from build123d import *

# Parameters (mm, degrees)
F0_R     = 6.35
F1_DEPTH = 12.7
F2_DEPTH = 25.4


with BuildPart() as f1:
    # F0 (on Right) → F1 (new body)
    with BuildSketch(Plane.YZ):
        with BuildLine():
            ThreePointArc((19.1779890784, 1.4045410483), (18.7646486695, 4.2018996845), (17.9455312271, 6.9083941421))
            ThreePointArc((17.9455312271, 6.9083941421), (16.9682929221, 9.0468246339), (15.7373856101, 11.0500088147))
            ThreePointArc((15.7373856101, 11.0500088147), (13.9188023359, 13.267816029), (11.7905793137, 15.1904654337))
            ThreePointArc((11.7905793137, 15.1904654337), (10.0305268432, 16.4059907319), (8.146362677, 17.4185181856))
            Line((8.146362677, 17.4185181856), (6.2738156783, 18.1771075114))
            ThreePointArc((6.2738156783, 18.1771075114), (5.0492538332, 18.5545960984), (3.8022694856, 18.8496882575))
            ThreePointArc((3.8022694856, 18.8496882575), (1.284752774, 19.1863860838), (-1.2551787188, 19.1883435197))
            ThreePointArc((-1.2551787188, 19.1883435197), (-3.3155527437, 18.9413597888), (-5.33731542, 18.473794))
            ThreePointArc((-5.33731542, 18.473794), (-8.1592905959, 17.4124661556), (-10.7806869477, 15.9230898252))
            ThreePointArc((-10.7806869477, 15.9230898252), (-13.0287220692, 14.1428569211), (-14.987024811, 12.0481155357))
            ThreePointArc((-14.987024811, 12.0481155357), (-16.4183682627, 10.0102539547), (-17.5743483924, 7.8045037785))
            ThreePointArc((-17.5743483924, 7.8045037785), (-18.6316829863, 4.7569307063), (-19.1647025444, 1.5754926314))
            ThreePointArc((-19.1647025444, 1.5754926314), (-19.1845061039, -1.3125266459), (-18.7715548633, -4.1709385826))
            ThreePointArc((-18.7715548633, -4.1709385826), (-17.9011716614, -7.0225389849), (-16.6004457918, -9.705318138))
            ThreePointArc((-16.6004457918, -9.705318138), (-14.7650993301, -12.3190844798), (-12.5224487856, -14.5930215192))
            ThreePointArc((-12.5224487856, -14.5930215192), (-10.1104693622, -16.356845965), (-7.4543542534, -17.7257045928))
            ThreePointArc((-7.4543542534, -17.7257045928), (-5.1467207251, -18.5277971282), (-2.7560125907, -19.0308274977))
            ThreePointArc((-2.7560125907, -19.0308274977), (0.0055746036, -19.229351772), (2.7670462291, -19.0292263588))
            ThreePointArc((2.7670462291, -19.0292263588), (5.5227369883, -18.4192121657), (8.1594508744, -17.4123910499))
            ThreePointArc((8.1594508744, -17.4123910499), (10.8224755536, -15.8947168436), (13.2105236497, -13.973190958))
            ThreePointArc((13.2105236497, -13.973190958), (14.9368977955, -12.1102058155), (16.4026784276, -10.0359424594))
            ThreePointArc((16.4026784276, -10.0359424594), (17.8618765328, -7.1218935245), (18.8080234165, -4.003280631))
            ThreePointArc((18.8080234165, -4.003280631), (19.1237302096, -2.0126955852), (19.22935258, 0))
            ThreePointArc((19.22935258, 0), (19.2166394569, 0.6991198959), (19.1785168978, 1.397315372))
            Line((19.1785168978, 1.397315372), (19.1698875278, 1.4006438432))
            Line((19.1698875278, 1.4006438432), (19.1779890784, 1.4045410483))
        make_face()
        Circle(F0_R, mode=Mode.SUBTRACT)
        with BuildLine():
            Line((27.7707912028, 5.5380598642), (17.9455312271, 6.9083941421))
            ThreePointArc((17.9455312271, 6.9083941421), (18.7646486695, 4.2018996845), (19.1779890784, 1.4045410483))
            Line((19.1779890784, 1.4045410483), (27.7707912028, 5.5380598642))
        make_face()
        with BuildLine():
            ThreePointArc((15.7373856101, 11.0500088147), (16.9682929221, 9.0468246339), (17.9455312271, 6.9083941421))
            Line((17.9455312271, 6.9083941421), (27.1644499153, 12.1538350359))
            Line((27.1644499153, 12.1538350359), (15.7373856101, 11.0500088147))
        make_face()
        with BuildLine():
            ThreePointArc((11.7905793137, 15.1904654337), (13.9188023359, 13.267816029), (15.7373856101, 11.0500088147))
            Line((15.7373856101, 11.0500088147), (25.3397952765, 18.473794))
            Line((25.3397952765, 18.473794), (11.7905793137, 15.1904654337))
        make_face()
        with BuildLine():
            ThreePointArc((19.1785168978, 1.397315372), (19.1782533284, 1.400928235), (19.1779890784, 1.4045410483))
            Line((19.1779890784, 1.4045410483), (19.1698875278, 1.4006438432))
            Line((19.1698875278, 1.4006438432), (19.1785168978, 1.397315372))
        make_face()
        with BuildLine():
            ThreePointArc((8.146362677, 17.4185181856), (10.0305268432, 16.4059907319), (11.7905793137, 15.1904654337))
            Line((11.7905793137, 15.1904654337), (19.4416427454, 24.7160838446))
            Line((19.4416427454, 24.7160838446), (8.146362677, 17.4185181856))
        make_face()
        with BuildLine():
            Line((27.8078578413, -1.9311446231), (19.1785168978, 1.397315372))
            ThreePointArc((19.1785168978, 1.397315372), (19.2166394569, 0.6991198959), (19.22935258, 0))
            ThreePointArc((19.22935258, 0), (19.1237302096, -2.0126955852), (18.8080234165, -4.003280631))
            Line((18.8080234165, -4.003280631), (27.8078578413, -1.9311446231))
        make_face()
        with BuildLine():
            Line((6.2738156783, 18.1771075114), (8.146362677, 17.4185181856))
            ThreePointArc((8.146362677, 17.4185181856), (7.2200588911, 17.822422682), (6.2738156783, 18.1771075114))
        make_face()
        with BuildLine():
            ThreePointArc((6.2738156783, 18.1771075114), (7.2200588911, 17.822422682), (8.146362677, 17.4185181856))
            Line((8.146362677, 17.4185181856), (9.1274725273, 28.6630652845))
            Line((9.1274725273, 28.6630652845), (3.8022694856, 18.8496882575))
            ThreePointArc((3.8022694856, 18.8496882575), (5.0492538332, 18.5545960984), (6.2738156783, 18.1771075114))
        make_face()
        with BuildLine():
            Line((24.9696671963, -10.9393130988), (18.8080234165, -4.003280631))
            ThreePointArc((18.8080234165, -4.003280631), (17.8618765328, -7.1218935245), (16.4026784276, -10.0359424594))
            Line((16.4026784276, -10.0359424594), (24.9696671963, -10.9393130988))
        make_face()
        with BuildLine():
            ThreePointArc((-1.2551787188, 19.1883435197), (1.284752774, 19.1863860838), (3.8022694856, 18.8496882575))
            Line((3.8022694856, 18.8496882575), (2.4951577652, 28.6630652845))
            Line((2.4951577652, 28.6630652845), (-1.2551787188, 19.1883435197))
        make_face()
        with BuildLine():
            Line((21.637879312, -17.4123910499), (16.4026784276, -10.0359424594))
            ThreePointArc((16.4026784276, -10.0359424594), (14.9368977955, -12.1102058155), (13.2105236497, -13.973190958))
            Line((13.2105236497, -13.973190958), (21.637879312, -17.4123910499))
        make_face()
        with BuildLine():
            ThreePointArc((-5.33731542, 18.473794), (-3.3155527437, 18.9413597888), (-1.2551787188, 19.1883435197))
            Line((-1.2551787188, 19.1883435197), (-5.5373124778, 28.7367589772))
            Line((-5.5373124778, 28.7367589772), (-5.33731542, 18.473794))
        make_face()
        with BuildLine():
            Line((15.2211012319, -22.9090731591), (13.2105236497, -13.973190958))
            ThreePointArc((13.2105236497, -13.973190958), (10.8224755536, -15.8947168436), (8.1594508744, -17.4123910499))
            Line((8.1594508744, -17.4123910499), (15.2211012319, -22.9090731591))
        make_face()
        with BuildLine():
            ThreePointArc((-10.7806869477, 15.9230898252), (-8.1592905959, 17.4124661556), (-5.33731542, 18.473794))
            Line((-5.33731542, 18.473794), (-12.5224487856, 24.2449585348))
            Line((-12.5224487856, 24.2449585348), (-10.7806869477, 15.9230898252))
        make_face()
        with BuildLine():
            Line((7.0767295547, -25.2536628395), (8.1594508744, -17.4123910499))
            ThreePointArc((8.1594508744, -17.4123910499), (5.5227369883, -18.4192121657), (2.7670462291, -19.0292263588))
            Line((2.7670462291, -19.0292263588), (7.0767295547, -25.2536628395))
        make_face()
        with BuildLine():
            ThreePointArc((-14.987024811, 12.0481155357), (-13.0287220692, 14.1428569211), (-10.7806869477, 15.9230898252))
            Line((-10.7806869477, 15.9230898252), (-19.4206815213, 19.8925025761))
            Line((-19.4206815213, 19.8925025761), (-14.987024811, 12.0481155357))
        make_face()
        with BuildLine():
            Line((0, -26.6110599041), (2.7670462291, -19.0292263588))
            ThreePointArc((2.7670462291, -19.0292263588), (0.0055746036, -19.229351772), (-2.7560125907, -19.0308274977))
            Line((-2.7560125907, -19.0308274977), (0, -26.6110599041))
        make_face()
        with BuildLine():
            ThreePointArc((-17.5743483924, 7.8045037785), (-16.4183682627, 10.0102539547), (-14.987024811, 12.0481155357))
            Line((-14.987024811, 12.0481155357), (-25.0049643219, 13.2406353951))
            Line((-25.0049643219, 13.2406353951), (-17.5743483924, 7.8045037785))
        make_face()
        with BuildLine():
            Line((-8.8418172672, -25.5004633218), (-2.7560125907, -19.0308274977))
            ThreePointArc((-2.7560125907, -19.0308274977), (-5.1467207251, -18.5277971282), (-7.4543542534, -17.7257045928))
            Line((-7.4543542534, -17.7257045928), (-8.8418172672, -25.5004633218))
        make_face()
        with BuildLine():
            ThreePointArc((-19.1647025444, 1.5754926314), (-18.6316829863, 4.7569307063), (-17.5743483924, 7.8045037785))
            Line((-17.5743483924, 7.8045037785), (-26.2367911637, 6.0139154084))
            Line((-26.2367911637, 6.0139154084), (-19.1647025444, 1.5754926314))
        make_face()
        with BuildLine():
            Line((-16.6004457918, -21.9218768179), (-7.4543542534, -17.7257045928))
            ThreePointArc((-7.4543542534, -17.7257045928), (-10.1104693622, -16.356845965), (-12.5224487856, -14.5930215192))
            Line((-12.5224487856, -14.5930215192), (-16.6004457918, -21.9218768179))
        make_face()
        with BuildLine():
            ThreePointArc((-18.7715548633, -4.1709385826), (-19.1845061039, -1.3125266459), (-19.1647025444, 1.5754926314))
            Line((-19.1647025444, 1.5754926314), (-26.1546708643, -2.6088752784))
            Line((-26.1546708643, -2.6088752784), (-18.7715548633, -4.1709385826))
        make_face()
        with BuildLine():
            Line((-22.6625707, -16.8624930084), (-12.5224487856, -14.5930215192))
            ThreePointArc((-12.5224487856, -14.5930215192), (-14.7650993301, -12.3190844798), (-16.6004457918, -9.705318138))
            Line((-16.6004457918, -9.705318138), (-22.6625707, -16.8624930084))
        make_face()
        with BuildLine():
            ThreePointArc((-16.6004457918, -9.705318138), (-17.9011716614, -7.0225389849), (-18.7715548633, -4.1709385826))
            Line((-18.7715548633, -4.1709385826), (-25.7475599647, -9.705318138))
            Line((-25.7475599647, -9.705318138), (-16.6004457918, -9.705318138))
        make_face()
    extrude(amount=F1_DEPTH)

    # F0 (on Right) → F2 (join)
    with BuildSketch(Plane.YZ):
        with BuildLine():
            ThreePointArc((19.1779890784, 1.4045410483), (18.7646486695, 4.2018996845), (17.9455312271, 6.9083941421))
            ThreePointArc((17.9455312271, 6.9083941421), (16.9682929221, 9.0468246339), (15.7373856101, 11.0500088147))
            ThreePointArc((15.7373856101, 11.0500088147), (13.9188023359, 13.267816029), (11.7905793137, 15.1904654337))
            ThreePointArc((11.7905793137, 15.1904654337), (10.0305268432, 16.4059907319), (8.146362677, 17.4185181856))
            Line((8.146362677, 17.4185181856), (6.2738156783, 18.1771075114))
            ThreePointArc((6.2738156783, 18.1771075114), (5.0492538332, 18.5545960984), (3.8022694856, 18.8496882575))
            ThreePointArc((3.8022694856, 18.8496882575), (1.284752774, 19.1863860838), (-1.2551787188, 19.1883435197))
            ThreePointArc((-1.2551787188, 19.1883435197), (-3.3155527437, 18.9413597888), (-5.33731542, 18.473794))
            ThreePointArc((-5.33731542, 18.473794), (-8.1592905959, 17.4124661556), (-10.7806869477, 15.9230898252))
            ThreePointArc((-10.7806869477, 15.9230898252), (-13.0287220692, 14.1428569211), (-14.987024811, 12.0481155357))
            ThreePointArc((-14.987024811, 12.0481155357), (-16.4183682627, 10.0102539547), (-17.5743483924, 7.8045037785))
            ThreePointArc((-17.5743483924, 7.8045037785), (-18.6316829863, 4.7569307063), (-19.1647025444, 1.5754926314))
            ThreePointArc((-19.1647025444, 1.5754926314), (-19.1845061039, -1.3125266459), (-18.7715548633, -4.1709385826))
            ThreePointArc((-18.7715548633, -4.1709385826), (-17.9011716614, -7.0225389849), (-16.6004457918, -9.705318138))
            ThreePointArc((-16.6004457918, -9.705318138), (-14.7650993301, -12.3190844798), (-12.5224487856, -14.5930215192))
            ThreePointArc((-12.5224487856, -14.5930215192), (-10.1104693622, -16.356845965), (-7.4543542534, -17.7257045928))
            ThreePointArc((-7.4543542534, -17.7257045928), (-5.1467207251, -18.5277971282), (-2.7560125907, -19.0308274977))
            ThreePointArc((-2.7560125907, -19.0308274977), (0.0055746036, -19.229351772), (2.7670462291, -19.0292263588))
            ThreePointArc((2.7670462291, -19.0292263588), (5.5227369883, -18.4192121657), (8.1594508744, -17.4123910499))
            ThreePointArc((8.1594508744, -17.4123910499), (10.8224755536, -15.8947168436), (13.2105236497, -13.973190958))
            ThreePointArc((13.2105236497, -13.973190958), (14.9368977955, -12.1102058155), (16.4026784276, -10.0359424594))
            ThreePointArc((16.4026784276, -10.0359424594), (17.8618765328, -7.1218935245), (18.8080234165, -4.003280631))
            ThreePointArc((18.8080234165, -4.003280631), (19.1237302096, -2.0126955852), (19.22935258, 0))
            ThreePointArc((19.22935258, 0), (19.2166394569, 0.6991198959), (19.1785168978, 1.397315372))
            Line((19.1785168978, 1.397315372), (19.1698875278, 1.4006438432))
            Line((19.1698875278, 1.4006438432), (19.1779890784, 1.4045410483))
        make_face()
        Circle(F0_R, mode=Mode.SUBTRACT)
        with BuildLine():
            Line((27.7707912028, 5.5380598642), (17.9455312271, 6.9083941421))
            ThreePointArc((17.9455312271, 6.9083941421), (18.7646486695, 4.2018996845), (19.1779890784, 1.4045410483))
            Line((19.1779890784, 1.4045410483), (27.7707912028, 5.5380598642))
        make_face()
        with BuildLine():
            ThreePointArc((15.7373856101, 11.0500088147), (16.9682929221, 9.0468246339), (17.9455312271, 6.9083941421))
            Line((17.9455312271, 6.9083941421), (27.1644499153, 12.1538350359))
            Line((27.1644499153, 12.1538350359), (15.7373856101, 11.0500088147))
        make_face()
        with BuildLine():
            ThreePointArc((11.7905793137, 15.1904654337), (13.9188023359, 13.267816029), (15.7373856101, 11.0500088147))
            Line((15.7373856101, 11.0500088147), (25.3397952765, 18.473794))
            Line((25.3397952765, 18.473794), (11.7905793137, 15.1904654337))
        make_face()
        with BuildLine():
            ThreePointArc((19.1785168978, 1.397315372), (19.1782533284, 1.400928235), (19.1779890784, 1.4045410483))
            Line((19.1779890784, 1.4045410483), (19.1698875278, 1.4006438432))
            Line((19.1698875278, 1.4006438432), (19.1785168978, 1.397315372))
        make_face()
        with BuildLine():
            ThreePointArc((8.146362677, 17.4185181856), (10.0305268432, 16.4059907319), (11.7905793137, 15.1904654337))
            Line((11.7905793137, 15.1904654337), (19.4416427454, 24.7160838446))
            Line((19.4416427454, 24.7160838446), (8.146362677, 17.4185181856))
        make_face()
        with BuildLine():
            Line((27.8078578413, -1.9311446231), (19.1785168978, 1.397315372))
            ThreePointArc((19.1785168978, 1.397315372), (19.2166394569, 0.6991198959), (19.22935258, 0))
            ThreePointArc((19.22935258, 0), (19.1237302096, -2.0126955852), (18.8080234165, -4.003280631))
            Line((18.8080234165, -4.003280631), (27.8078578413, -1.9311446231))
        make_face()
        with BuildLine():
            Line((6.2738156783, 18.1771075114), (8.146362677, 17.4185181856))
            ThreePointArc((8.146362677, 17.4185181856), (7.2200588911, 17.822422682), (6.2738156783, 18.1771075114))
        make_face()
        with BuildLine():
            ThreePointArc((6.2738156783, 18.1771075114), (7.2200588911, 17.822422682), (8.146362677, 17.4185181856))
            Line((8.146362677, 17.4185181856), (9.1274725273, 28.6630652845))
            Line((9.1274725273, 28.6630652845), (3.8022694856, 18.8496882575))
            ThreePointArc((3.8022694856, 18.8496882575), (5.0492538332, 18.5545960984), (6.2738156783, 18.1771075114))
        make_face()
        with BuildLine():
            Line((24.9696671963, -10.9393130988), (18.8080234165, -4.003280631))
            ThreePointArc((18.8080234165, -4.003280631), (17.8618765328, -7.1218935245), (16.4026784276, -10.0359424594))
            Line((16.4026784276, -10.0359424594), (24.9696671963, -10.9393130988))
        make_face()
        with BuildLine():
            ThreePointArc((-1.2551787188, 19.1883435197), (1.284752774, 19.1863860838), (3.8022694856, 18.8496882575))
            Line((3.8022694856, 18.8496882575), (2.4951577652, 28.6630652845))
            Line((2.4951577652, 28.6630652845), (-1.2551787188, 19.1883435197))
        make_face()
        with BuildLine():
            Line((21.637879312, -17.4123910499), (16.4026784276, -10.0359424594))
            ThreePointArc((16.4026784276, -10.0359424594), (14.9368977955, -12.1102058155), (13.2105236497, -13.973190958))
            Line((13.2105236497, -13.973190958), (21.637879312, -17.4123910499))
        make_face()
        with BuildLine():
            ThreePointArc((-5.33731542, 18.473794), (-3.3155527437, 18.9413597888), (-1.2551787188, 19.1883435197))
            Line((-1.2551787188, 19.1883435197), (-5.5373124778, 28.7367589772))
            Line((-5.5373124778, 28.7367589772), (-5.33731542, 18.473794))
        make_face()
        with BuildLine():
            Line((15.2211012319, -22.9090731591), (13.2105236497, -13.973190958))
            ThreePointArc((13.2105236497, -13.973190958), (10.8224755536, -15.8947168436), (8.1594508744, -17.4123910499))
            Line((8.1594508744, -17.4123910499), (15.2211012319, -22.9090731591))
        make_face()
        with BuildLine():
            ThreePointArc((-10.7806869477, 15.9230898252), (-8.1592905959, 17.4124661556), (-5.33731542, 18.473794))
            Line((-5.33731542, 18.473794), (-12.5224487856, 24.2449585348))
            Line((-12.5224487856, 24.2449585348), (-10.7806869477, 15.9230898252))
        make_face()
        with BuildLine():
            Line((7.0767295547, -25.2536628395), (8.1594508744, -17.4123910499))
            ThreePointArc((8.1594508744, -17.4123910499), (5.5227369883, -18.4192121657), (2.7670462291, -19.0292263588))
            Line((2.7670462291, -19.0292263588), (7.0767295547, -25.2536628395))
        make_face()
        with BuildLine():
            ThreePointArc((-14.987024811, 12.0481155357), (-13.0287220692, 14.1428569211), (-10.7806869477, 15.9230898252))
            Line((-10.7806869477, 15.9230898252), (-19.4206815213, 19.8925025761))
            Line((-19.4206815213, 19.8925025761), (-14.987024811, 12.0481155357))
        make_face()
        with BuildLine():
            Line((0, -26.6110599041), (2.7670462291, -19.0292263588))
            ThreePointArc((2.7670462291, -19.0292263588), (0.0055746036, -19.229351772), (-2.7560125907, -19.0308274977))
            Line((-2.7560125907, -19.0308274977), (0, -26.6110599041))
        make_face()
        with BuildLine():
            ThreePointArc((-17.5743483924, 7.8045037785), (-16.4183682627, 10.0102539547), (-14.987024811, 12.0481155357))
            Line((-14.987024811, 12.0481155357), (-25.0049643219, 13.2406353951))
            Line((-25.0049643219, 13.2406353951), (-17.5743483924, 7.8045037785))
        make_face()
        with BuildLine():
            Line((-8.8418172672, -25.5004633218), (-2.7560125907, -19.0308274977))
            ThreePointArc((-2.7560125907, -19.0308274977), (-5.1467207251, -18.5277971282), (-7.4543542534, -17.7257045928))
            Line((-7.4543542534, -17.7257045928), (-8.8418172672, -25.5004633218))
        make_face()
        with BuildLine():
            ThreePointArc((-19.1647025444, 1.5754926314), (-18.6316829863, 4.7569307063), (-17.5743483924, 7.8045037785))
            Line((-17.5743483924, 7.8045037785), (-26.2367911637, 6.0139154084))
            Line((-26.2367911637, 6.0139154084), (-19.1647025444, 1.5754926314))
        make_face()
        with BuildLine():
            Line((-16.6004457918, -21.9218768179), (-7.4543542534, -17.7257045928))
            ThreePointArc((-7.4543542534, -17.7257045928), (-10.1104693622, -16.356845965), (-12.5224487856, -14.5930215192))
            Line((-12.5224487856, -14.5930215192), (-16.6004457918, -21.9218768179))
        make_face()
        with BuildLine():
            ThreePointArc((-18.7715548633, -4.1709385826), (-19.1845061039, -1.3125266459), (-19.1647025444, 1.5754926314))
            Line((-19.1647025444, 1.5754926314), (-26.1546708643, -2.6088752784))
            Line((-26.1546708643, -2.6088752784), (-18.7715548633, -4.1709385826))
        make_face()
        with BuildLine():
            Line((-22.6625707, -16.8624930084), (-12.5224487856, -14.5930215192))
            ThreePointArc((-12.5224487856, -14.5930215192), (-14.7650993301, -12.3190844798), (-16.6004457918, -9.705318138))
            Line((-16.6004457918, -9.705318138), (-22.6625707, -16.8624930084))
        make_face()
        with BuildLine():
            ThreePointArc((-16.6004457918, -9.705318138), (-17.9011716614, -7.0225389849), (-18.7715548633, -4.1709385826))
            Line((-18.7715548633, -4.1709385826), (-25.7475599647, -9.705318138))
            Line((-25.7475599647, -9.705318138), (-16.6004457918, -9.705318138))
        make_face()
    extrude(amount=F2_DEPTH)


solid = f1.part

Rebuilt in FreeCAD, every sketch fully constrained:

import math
import FreeCAD as App
import Part
import Sketcher
Q = App.Units.Quantity

doc = App.newDocument("Part")
body = doc.addObject("PartDesign::Body", "Body")

# Sketch on YZ plane
sketch1 = body.newObject("Sketcher::SketchObject", "Sketch")
sketch1.AttachmentSupport = (doc.getObject("YZ_Plane"), [""])
sketch1.MapMode = "FlatFace"
sketch1.addGeometry([
    Part.LineSegment(App.Vector(19.177989, 1.404541, 0), App.Vector(27.770791, 5.53806, 0)),  # 0
    Part.LineSegment(App.Vector(27.770791, 5.53806, 0), App.Vector(17.945531, 6.908394, 0)),  # 1
    Part.LineSegment(App.Vector(17.945531, 6.908394, 0), App.Vector(27.16445, 12.153835, 0)),  # 2
    Part.LineSegment(App.Vector(27.16445, 12.153835, 0), App.Vector(15.737386, 11.050009, 0)),  # 3
    Part.LineSegment(App.Vector(15.737386, 11.050009, 0), App.Vector(25.339795, 18.473794, 0)),  # 4
    Part.LineSegment(App.Vector(25.339795, 18.473794, 0), App.Vector(11.790579, 15.190465, 0)),  # 5
    Part.LineSegment(App.Vector(11.790579, 15.190465, 0), App.Vector(19.441643, 24.716084, 0)),  # 6
    Part.LineSegment(App.Vector(19.441643, 24.716084, 0), App.Vector(8.146363, 17.418518, 0)),  # 7
    Part.LineSegment(App.Vector(8.146363, 17.418518, 0), App.Vector(9.127473, 28.663065, 0)),  # 8
    Part.LineSegment(App.Vector(9.127473, 28.663065, 0), App.Vector(3.802269, 18.849688, 0)),  # 9
    Part.LineSegment(App.Vector(3.802269, 18.849688, 0), App.Vector(2.495158, 28.663065, 0)),  # 10
    Part.LineSegment(App.Vector(2.495158, 28.663065, 0), App.Vector(-1.255179, 19.188344, 0)),  # 11
    Part.LineSegment(App.Vector(-1.255179, 19.188344, 0), App.Vector(-5.537312, 28.736759, 0)),  # 12
    Part.LineSegment(App.Vector(-5.537312, 28.736759, 0), App.Vector(-5.337315, 18.473794, 0)),  # 13
    Part.LineSegment(App.Vector(-5.337315, 18.473794, 0), App.Vector(-12.522449, 24.244959, 0)),  # 14
    Part.LineSegment(App.Vector(-12.522449, 24.244959, 0), App.Vector(-10.780687, 15.92309, 0)),  # 15
    Part.LineSegment(App.Vector(-10.780687, 15.92309, 0), App.Vector(-19.420682, 19.892503, 0)),  # 16
    Part.LineSegment(App.Vector(-19.420682, 19.892503, 0), App.Vector(-14.987025, 12.048116, 0)),  # 17
    Part.LineSegment(App.Vector(-14.987025, 12.048116, 0), App.Vector(-25.004964, 13.240635, 0)),  # 18
    Part.LineSegment(App.Vector(-25.004964, 13.240635, 0), App.Vector(-17.574348, 7.804504, 0)),  # 19
    Part.LineSegment(App.Vector(-17.574348, 7.804504, 0), App.Vector(-26.236791, 6.013915, 0)),  # 20
    Part.LineSegment(App.Vector(-26.236791, 6.013915, 0), App.Vector(-19.164703, 1.575493, 0)),  # 21
    Part.LineSegment(App.Vector(-19.164703, 1.575493, 0), App.Vector(-26.154671, -2.608875, 0)),  # 22
    Part.LineSegment(App.Vector(-26.154671, -2.608875, 0), App.Vector(-18.771555, -4.170939, 0)),  # 23
    Part.LineSegment(App.Vector(-18.771555, -4.170939, 0), App.Vector(-25.74756, -9.705318, 0)),  # 24
    Part.LineSegment(App.Vector(-25.74756, -9.705318, 0), App.Vector(-16.600446, -9.705318, 0)),  # 25
    Part.LineSegment(App.Vector(-16.600446, -9.705318, 0), App.Vector(-22.662571, -16.862493, 0)),  # 26
    Part.LineSegment(App.Vector(-22.662571, -16.862493, 0), App.Vector(-12.522449, -14.593022, 0)),  # 27
    Part.LineSegment(App.Vector(-12.522449, -14.593022, 0), App.Vector(-16.600446, -21.921877, 0)),  # 28
    Part.LineSegment(App.Vector(-16.600446, -21.921877, 0), App.Vector(-7.454354, -17.725705, 0)),  # 29
    Part.LineSegment(App.Vector(-7.454354, -17.725705, 0), App.Vector(-8.841817, -25.500463, 0)),  # 30
    Part.LineSegment(App.Vector(-8.841817, -25.500463, 0), App.Vector(-2.756013, -19.030827, 0)),  # 31
    Part.LineSegment(App.Vector(-2.756013, -19.030827, 0), App.Vector(0, -26.61106, 0)),  # 32
    Part.LineSegment(App.Vector(0, -26.61106, 0), App.Vector(2.767046, -19.029226, 0)),  # 33
    Part.LineSegment(App.Vector(2.767046, -19.029226, 0), App.Vector(7.07673, -25.253663, 0)),  # 34
    Part.LineSegment(App.Vector(7.07673, -25.253663, 0), App.Vector(8.159451, -17.412391, 0)),  # 35
    Part.LineSegment(App.Vector(8.159451, -17.412391, 0), App.Vector(15.221101, -22.909073, 0)),  # 36
    Part.LineSegment(App.Vector(15.221101, -22.909073, 0), App.Vector(13.210524, -13.973191, 0)),  # 37
    Part.LineSegment(App.Vector(13.210524, -13.973191, 0), App.Vector(21.637879, -17.412391, 0)),  # 38
    Part.LineSegment(App.Vector(21.637879, -17.412391, 0), App.Vector(16.402678, -10.035942, 0)),  # 39
    Part.LineSegment(App.Vector(16.402678, -10.035942, 0), App.Vector(24.969667, -10.939313, 0)),  # 40
    Part.LineSegment(App.Vector(24.969667, -10.939313, 0), App.Vector(18.808023, -4.003281, 0)),  # 41
    Part.LineSegment(App.Vector(18.808023, -4.003281, 0), App.Vector(27.807858, -1.931145, 0)),  # 42
    Part.LineSegment(App.Vector(27.807858, -1.931145, 0), App.Vector(19.178517, 1.397315, 0)),  # 43
    Part.ArcOfCircle(Part.Circle(App.Vector(0.000142, 0.00001, 0), App.Vector(0, 0, 1), 19.22921), math.radians(4.167114), math.radians(4.188701)),  # 44
    Part.Circle(App.Vector(0, 0, 0), App.Vector(0, 0, 1), 6.35),  # 45
], False)
sketch1.addConstraint([
    Sketcher.Constraint("Coincident", 0, 2, 1, 1),
    Sketcher.Constraint("Coincident", 1, 2, 2, 1),
    Sketcher.Constraint("Coincident", 2, 2, 3, 1),
    Sketcher.Constraint("Coincident", 3, 2, 4, 1),
    Sketcher.Constraint("Coincident", 4, 2, 5, 1),
    Sketcher.Constraint("Coincident", 5, 2, 6, 1),
    Sketcher.Constraint("Coincident", 6, 2, 7, 1),
    Sketcher.Constraint("Coincident", 7, 2, 8, 1),
    Sketcher.Constraint("Coincident", 8, 2, 9, 1),
    Sketcher.Constraint("Coincident", 9, 2, 10, 1),
    Sketcher.Constraint("Coincident", 10, 2, 11, 1),
    Sketcher.Constraint("Coincident", 11, 2, 12, 1),
    Sketcher.Constraint("Coincident", 12, 2, 13, 1),
    Sketcher.Constraint("Coincident", 13, 2, 14, 1),
    Sketcher.Constraint("Coincident", 14, 2, 15, 1),
    Sketcher.Constraint("Coincident", 15, 2, 16, 1),
    Sketcher.Constraint("Coincident", 16, 2, 17, 1),
    Sketcher.Constraint("Coincident", 17, 2, 18, 1),
    Sketcher.Constraint("Coincident", 18, 2, 19, 1),
    Sketcher.Constraint("Coincident", 19, 2, 20, 1),
    Sketcher.Constraint("Coincident", 20, 2, 21, 1),
    Sketcher.Constraint("Coincident", 21, 2, 22, 1),
    Sketcher.Constraint("Coincident", 22, 2, 23, 1),
    Sketcher.Constraint("Coincident", 23, 2, 24, 1),
    Sketcher.Constraint("Coincident", 24, 2, 25, 1),
    Sketcher.Constraint("Coincident", 25, 2, 26, 1),
    Sketcher.Constraint("Coincident", 26, 2, 27, 1),
    Sketcher.Constraint("Coincident", 27, 2, 28, 1),
    Sketcher.Constraint("Coincident", 28, 2, 29, 1),
    Sketcher.Constraint("Coincident", 29, 2, 30, 1),
    Sketcher.Constraint("Coincident", 30, 2, 31, 1),
    Sketcher.Constraint("Coincident", 31, 2, 32, 1),
    Sketcher.Constraint("Coincident", 32, 2, 33, 1),
    Sketcher.Constraint("Coincident", 33, 2, 34, 1),
    Sketcher.Constraint("Coincident", 34, 2, 35, 1),
    Sketcher.Constraint("Coincident", 35, 2, 36, 1),
    Sketcher.Constraint("Coincident", 36, 2, 37, 1),
    Sketcher.Constraint("Coincident", 37, 2, 38, 1),
    Sketcher.Constraint("Coincident", 38, 2, 39, 1),
    Sketcher.Constraint("Coincident", 39, 2, 40, 1),
    Sketcher.Constraint("Coincident", 40, 2, 41, 1),
    Sketcher.Constraint("Coincident", 41, 2, 42, 1),
    Sketcher.Constraint("Coincident", 42, 2, 43, 1),
    Sketcher.Constraint("Coincident", 43, 2, 44, 1),
    Sketcher.Constraint("Coincident", 44, 2, 0, 1),
    Sketcher.Constraint("Horizontal", 25),
    Sketcher.Constraint("Coincident", 45, 3, -1, 1),
    Sketcher.Constraint("PointOnObject", 32, 2, -2),
    Sketcher.Constraint("Perpendicular", 6, 14),
    Sketcher.Constraint("Horizontal", 8, 2, 10, 2),
    Sketcher.Constraint("Horizontal", 4, 2, 13, 2),
    Sketcher.Constraint("Horizontal", 35, 2, 38, 2),
    Sketcher.Constraint("Vertical", 14, 2, 27, 2),
    Sketcher.Constraint("Vertical", 25, 2, 28, 2),
    Sketcher.Constraint("Diameter", 45, Q("0.5 in")),
    Sketcher.Constraint("Radius", 44, 19.22921),
    Sketcher.Constraint("DistanceX", 12, 2, 9, 2, Q("0.3677001 in")),
    Sketcher.Constraint("DistanceY", 7, 2, 12, 2, Q("0.4456 in")),
    Sketcher.Constraint("Distance", 4, 12.137498),
    Sketcher.Constraint("Distance", 32, 8.065701),
    Sketcher.Constraint("Distance", 42, 9.2353),
    Sketcher.Constraint("DistanceX", -1, 1, 36, 2, 15.221101),
    Sketcher.Constraint("DistanceY", 44, 3, 3, 2, 11.049998),
    Sketcher.Constraint("DistanceY", 1, 2, 4, 2, 11.5654),
    Sketcher.Constraint("DistanceY", 5, 2, 8, 2, 13.4726),
    Sketcher.Constraint("DistanceY", 14, 2, 12, 2, 4.4918),
    Sketcher.Constraint("DistanceY", 15, 2, 9, 2, 2.926598),
    Sketcher.Constraint("DistanceY", 19, 2, 16, 2, 12.087999),
    Sketcher.Constraint("DistanceY", 20, 2, 17, 2, 6.0342),
    Sketcher.Constraint("DistanceX", 22, 2, 26, 2, 3.4921),
    Sketcher.Constraint("DistanceX", 23, 2, 29, 2, 11.317201),
    Sketcher.Constraint("DistanceY", 31, 2, 33, 2, 0.001601),
    Sketcher.Constraint("DistanceX", 29, 2, 33, 2, 10.2214),
    Sketcher.Constraint("DistanceY", 30, 2, 34, 2, 0.2468),
    Sketcher.Constraint("DistanceY", 35, 2, 37, 2, 3.4392),
    Sketcher.Constraint("DistanceX", 39, 2, 38, 2, 5.235201),
    Sketcher.Constraint("DistanceX", 37, 2, 41, 2, 5.5975),
    Sketcher.Constraint("Distance", 1, 9.92036),
    Sketcher.Constraint("Distance", 2, 10.606748),
    Sketcher.Constraint("Distance", 5, 13.941359),
    Sketcher.Constraint("Distance", 9, 11.165131),
    Sketcher.Constraint("Distance", 12, 10.46465),
    Sketcher.Constraint("Distance", 15, 8.50219),
    Sketcher.Constraint("Distance", 20, 8.845571),
    Sketcher.Constraint("Distance", 23, 7.546552),
    Sketcher.Constraint("Distance", 24, 8.904718),
    Sketcher.Constraint("Distance", 30, 7.89759),
    Sketcher.Constraint("Distance", 33, 8.070982),
    Sketcher.Constraint("Distance", 35, 7.91567),
    Sketcher.Constraint("Distance", 37, 9.15928),
    Sketcher.Constraint("Distance", 38, 9.102111),
    Sketcher.Constraint("Distance", 41, 9.277629),
    Sketcher.Constraint("Distance", 43, 9.249009),
    Sketcher.Constraint("DistanceX", 25, 1, 25, 2, 9.147114),
    Sketcher.Constraint("DistanceX", -1, 1, 0, 2, 27.770791),
    Sketcher.Constraint("DistanceY", -1, 1, 0, 2, 5.53806),
    Sketcher.Constraint("DistanceX", -1, 1, 1, 2, 17.945531),
    Sketcher.Constraint("DistanceX", -1, 1, 2, 2, 27.16445),
    Sketcher.Constraint("DistanceY", -1, 1, 3, 2, 11.050009),
    Sketcher.Constraint("DistanceX", -1, 1, 5, 2, 11.790579),
    Sketcher.Constraint("DistanceY", -1, 1, 7, 2, 17.418518),
    Sketcher.Constraint("DistanceX", -1, 1, 9, 2, 3.802269),
    Sketcher.Constraint("DistanceY", -1, 1, 9, 2, 18.849688),
    Sketcher.Constraint("DistanceX", 11, 2, -1, 1, 1.255179),
    Sketcher.Constraint("DistanceX", 14, 2, -1, 1, 12.522449),
    Sketcher.Constraint("DistanceX", 16, 2, -1, 1, 19.420682),
    Sketcher.Constraint("DistanceX", 19, 2, -1, 1, 17.574348),
    Sketcher.Constraint("DistanceX", 20, 2, -1, 1, 26.236791),
    Sketcher.Constraint("DistanceX", 22, 2, -1, 1, 26.154671),
    Sketcher.Constraint("DistanceY", 23, 2, -1, 1, 4.170939),
    Sketcher.Constraint("DistanceX", 24, 2, -1, 1, 25.74756),
    Sketcher.Constraint("DistanceY", 24, 2, -1, 1, 9.705318),
    Sketcher.Constraint("DistanceY", 27, 2, -1, 1, 14.593022),
    Sketcher.Constraint("DistanceY", 32, 2, -1, 1, 26.61106),
    Sketcher.Constraint("DistanceX", -1, 1, 34, 2, 7.07673),
    Sketcher.Constraint("DistanceX", -1, 1, 35, 2, 8.159451),
    Sketcher.Constraint("DistanceY", 35, 2, -1, 1, 17.412391),
    Sketcher.Constraint("DistanceX", -1, 1, 38, 2, 21.637879),
    Sketcher.Constraint("DistanceY", 41, 2, -1, 1, 4.003281),
    Sketcher.Constraint("DistanceX", -1, 1, 44, 2, 19.177989),
    Sketcher.Constraint("DistanceY", -1, 1, 44, 2, 1.404541),
    Sketcher.Constraint("DistanceY", 1, 2, 5, 2, 8.282071),
    Sketcher.Constraint("DistanceY", 4, 2, 6, 2, 6.24229),
    Sketcher.Constraint("DistanceX", 1, 2, 6, 2, 1.496112),
    Sketcher.Constraint("DistanceX", 7, 2, 6, 2, 11.29528),
    Sketcher.Constraint("DistanceX", 10, 2, 9, 2, 1.307112),
    Sketcher.Constraint("DistanceY", 13, 2, 16, 2, 1.418709),
    Sketcher.Constraint("DistanceX", 17, 2, 13, 2, 9.649709),
    Sketcher.Constraint("DistanceX", 18, 2, 17, 2, 10.01794),
    Sketcher.Constraint("DistanceY", 17, 2, 18, 2, 1.19252),
    Sketcher.Constraint("DistanceY", 21, 2, 19, 2, 6.229011),
    Sketcher.Constraint("DistanceX", 20, 2, 21, 2, 7.072089),
    Sketcher.Constraint("DistanceY", 26, 2, 27, 2, 2.269471),
    Sketcher.Constraint("DistanceY", 28, 2, 25, 2, 12.216559),
    Sketcher.Constraint("DistanceY", 29, 2, 26, 2, 0.863212),
    Sketcher.Constraint("DistanceY", 37, 2, 39, 2, 3.937248),
    Sketcher.Constraint("DistanceX", 39, 2, 40, 2, 8.566989),
    Sketcher.Constraint("DistanceX", 40, 2, 42, 2, 2.838191),
])
pad1 = body.newObject("PartDesign::Pad", "Pad")
pad1.Profile = sketch1
pad1.Length = Q("0.5 in")

# Sketch on YZ plane
sketch2 = body.newObject("Sketcher::SketchObject", "Sketch001")
sketch2.AttachmentSupport = (doc.getObject("YZ_Plane"), [""])
sketch2.MapMode = "FlatFace"
sketch2.addGeometry([
    Part.LineSegment(App.Vector(19.177989, 1.404541, 0), App.Vector(27.770791, 5.53806, 0)),  # 0
    Part.LineSegment(App.Vector(27.770791, 5.53806, 0), App.Vector(17.945531, 6.908394, 0)),  # 1
    Part.LineSegment(App.Vector(17.945531, 6.908394, 0), App.Vector(27.16445, 12.153835, 0)),  # 2
    Part.LineSegment(App.Vector(27.16445, 12.153835, 0), App.Vector(15.737386, 11.050009, 0)),  # 3
    Part.LineSegment(App.Vector(15.737386, 11.050009, 0), App.Vector(25.339795, 18.473794, 0)),  # 4
    Part.LineSegment(App.Vector(25.339795, 18.473794, 0), App.Vector(11.790579, 15.190465, 0)),  # 5
    Part.LineSegment(App.Vector(11.790579, 15.190465, 0), App.Vector(19.441643, 24.716084, 0)),  # 6
    Part.LineSegment(App.Vector(19.441643, 24.716084, 0), App.Vector(8.146363, 17.418518, 0)),  # 7
    Part.LineSegment(App.Vector(8.146363, 17.418518, 0), App.Vector(9.127473, 28.663065, 0)),  # 8
    Part.LineSegment(App.Vector(9.127473, 28.663065, 0), App.Vector(3.802269, 18.849688, 0)),  # 9
    Part.LineSegment(App.Vector(3.802269, 18.849688, 0), App.Vector(2.495158, 28.663065, 0)),  # 10
    Part.LineSegment(App.Vector(2.495158, 28.663065, 0), App.Vector(-1.255179, 19.188344, 0)),  # 11
    Part.LineSegment(App.Vector(-1.255179, 19.188344, 0), App.Vector(-5.537312, 28.736759, 0)),  # 12
    Part.LineSegment(App.Vector(-5.537312, 28.736759, 0), App.Vector(-5.337315, 18.473794, 0)),  # 13
    Part.LineSegment(App.Vector(-5.337315, 18.473794, 0), App.Vector(-12.522449, 24.244959, 0)),  # 14
    Part.LineSegment(App.Vector(-12.522449, 24.244959, 0), App.Vector(-10.780687, 15.92309, 0)),  # 15
    Part.LineSegment(App.Vector(-10.780687, 15.92309, 0), App.Vector(-19.420682, 19.892503, 0)),  # 16
    Part.LineSegment(App.Vector(-19.420682, 19.892503, 0), App.Vector(-14.987025, 12.048116, 0)),  # 17
    Part.LineSegment(App.Vector(-14.987025, 12.048116, 0), App.Vector(-25.004964, 13.240635, 0)),  # 18
    Part.LineSegment(App.Vector(-25.004964, 13.240635, 0), App.Vector(-17.574348, 7.804504, 0)),  # 19
    Part.LineSegment(App.Vector(-17.574348, 7.804504, 0), App.Vector(-26.236791, 6.013915, 0)),  # 20
    Part.LineSegment(App.Vector(-26.236791, 6.013915, 0), App.Vector(-19.164703, 1.575493, 0)),  # 21
    Part.LineSegment(App.Vector(-19.164703, 1.575493, 0), App.Vector(-26.154671, -2.608875, 0)),  # 22
    Part.LineSegment(App.Vector(-26.154671, -2.608875, 0), App.Vector(-18.771555, -4.170939, 0)),  # 23
    Part.LineSegment(App.Vector(-18.771555, -4.170939, 0), App.Vector(-25.74756, -9.705318, 0)),  # 24
    Part.LineSegment(App.Vector(-25.74756, -9.705318, 0), App.Vector(-16.600446, -9.705318, 0)),  # 25
    Part.LineSegment(App.Vector(-16.600446, -9.705318, 0), App.Vector(-22.662571, -16.862493, 0)),  # 26
    Part.LineSegment(App.Vector(-22.662571, -16.862493, 0), App.Vector(-12.522449, -14.593022, 0)),  # 27
    Part.LineSegment(App.Vector(-12.522449, -14.593022, 0), App.Vector(-16.600446, -21.921877, 0)),  # 28
    Part.LineSegment(App.Vector(-16.600446, -21.921877, 0), App.Vector(-7.454354, -17.725705, 0)),  # 29
    Part.LineSegment(App.Vector(-7.454354, -17.725705, 0), App.Vector(-8.841817, -25.500463, 0)),  # 30
    Part.LineSegment(App.Vector(-8.841817, -25.500463, 0), App.Vector(-2.756013, -19.030827, 0)),  # 31
    Part.LineSegment(App.Vector(-2.756013, -19.030827, 0), App.Vector(0, -26.61106, 0)),  # 32
    Part.LineSegment(App.Vector(0, -26.61106, 0), App.Vector(2.767046, -19.029226, 0)),  # 33
    Part.LineSegment(App.Vector(2.767046, -19.029226, 0), App.Vector(7.07673, -25.253663, 0)),  # 34
    Part.LineSegment(App.Vector(7.07673, -25.253663, 0), App.Vector(8.159451, -17.412391, 0)),  # 35
    Part.LineSegment(App.Vector(8.159451, -17.412391, 0), App.Vector(15.221101, -22.909073, 0)),  # 36
    Part.LineSegment(App.Vector(15.221101, -22.909073, 0), App.Vector(13.210524, -13.973191, 0)),  # 37
    Part.LineSegment(App.Vector(13.210524, -13.973191, 0), App.Vector(21.637879, -17.412391, 0)),  # 38
    Part.LineSegment(App.Vector(21.637879, -17.412391, 0), App.Vector(16.402678, -10.035942, 0)),  # 39
    Part.LineSegment(App.Vector(16.402678, -10.035942, 0), App.Vector(24.969667, -10.939313, 0)),  # 40
    Part.LineSegment(App.Vector(24.969667, -10.939313, 0), App.Vector(18.808023, -4.003281, 0)),  # 41
    Part.LineSegment(App.Vector(18.808023, -4.003281, 0), App.Vector(27.807858, -1.931145, 0)),  # 42
    Part.LineSegment(App.Vector(27.807858, -1.931145, 0), App.Vector(19.178517, 1.397315, 0)),  # 43
    Part.ArcOfCircle(Part.Circle(App.Vector(0.000142, 0.00001, 0), App.Vector(0, 0, 1), 19.22921), math.radians(4.167114), math.radians(4.188701)),  # 44
    Part.Circle(App.Vector(0, 0, 0), App.Vector(0, 0, 1), 6.35),  # 45
], False)
sketch2.addConstraint([
    Sketcher.Constraint("Coincident", 0, 2, 1, 1),
    Sketcher.Constraint("Coincident", 1, 2, 2, 1),
    Sketcher.Constraint("Coincident", 2, 2, 3, 1),
    Sketcher.Constraint("Coincident", 3, 2, 4, 1),
    Sketcher.Constraint("Coincident", 4, 2, 5, 1),
    Sketcher.Constraint("Coincident", 5, 2, 6, 1),
    Sketcher.Constraint("Coincident", 6, 2, 7, 1),
    Sketcher.Constraint("Coincident", 7, 2, 8, 1),
    Sketcher.Constraint("Coincident", 8, 2, 9, 1),
    Sketcher.Constraint("Coincident", 9, 2, 10, 1),
    Sketcher.Constraint("Coincident", 10, 2, 11, 1),
    Sketcher.Constraint("Coincident", 11, 2, 12, 1),
    Sketcher.Constraint("Coincident", 12, 2, 13, 1),
    Sketcher.Constraint("Coincident", 13, 2, 14, 1),
    Sketcher.Constraint("Coincident", 14, 2, 15, 1),
    Sketcher.Constraint("Coincident", 15, 2, 16, 1),
    Sketcher.Constraint("Coincident", 16, 2, 17, 1),
    Sketcher.Constraint("Coincident", 17, 2, 18, 1),
    Sketcher.Constraint("Coincident", 18, 2, 19, 1),
    Sketcher.Constraint("Coincident", 19, 2, 20, 1),
    Sketcher.Constraint("Coincident", 20, 2, 21, 1),
    Sketcher.Constraint("Coincident", 21, 2, 22, 1),
    Sketcher.Constraint("Coincident", 22, 2, 23, 1),
    Sketcher.Constraint("Coincident", 23, 2, 24, 1),
    Sketcher.Constraint("Coincident", 24, 2, 25, 1),
    Sketcher.Constraint("Coincident", 25, 2, 26, 1),
    Sketcher.Constraint("Coincident", 26, 2, 27, 1),
    Sketcher.Constraint("Coincident", 27, 2, 28, 1),
    Sketcher.Constraint("Coincident", 28, 2, 29, 1),
    Sketcher.Constraint("Coincident", 29, 2, 30, 1),
    Sketcher.Constraint("Coincident", 30, 2, 31, 1),
    Sketcher.Constraint("Coincident", 31, 2, 32, 1),
    Sketcher.Constraint("Coincident", 32, 2, 33, 1),
    Sketcher.Constraint("Coincident", 33, 2, 34, 1),
    Sketcher.Constraint("Coincident", 34, 2, 35, 1),
    Sketcher.Constraint("Coincident", 35, 2, 36, 1),
    Sketcher.Constraint("Coincident", 36, 2, 37, 1),
    Sketcher.Constraint("Coincident", 37, 2, 38, 1),
    Sketcher.Constraint("Coincident", 38, 2, 39, 1),
    Sketcher.Constraint("Coincident", 39, 2, 40, 1),
    Sketcher.Constraint("Coincident", 40, 2, 41, 1),
    Sketcher.Constraint("Coincident", 41, 2, 42, 1),
    Sketcher.Constraint("Coincident", 42, 2, 43, 1),
    Sketcher.Constraint("Coincident", 43, 2, 44, 1),
    Sketcher.Constraint("Coincident", 44, 2, 0, 1),
    Sketcher.Constraint("Horizontal", 25),
    Sketcher.Constraint("Coincident", 45, 3, -1, 1),
    Sketcher.Constraint("PointOnObject", 32, 2, -2),
    Sketcher.Constraint("Perpendicular", 6, 14),
    Sketcher.Constraint("Horizontal", 8, 2, 10, 2),
    Sketcher.Constraint("Horizontal", 4, 2, 13, 2),
    Sketcher.Constraint("Horizontal", 35, 2, 38, 2),
    Sketcher.Constraint("Vertical", 14, 2, 27, 2),
    Sketcher.Constraint("Vertical", 25, 2, 28, 2),
    Sketcher.Constraint("Diameter", 45, Q("0.5 in")),
    Sketcher.Constraint("Radius", 44, 19.22921),
    Sketcher.Constraint("DistanceX", 12, 2, 9, 2, Q("0.3677001 in")),
    Sketcher.Constraint("DistanceY", 7, 2, 12, 2, Q("0.4456 in")),
    Sketcher.Constraint("Distance", 4, 12.137498),
    Sketcher.Constraint("Distance", 32, 8.065701),
    Sketcher.Constraint("Distance", 42, 9.2353),
    Sketcher.Constraint("DistanceX", -1, 1, 36, 2, 15.221101),
    Sketcher.Constraint("DistanceY", 44, 3, 3, 2, 11.049998),
    Sketcher.Constraint("DistanceY", 1, 2, 4, 2, 11.5654),
    Sketcher.Constraint("DistanceY", 5, 2, 8, 2, 13.4726),
    Sketcher.Constraint("DistanceY", 14, 2, 12, 2, 4.4918),
    Sketcher.Constraint("DistanceY", 15, 2, 9, 2, 2.926598),
    Sketcher.Constraint("DistanceY", 19, 2, 16, 2, 12.087999),
    Sketcher.Constraint("DistanceY", 20, 2, 17, 2, 6.0342),
    Sketcher.Constraint("DistanceX", 22, 2, 26, 2, 3.4921),
    Sketcher.Constraint("DistanceX", 23, 2, 29, 2, 11.317201),
    Sketcher.Constraint("DistanceY", 31, 2, 33, 2, 0.001601),
    Sketcher.Constraint("DistanceX", 29, 2, 33, 2, 10.2214),
    Sketcher.Constraint("DistanceY", 30, 2, 34, 2, 0.2468),
    Sketcher.Constraint("DistanceY", 35, 2, 37, 2, 3.4392),
    Sketcher.Constraint("DistanceX", 39, 2, 38, 2, 5.235201),
    Sketcher.Constraint("DistanceX", 37, 2, 41, 2, 5.5975),
    Sketcher.Constraint("Distance", 1, 9.92036),
    Sketcher.Constraint("Distance", 2, 10.606748),
    Sketcher.Constraint("Distance", 5, 13.941359),
    Sketcher.Constraint("Distance", 9, 11.165131),
    Sketcher.Constraint("Distance", 12, 10.46465),
    Sketcher.Constraint("Distance", 15, 8.50219),
    Sketcher.Constraint("Distance", 20, 8.845571),
    Sketcher.Constraint("Distance", 23, 7.546552),
    Sketcher.Constraint("Distance", 24, 8.904718),
    Sketcher.Constraint("Distance", 30, 7.89759),
    Sketcher.Constraint("Distance", 33, 8.070982),
    Sketcher.Constraint("Distance", 35, 7.91567),
    Sketcher.Constraint("Distance", 37, 9.15928),
    Sketcher.Constraint("Distance", 38, 9.102111),
    Sketcher.Constraint("Distance", 41, 9.277629),
    Sketcher.Constraint("Distance", 43, 9.249009),
    Sketcher.Constraint("DistanceX", 25, 1, 25, 2, 9.147114),
    Sketcher.Constraint("DistanceX", -1, 1, 0, 2, 27.770791),
    Sketcher.Constraint("DistanceY", -1, 1, 0, 2, 5.53806),
    Sketcher.Constraint("DistanceX", -1, 1, 1, 2, 17.945531),
    Sketcher.Constraint("DistanceX", -1, 1, 2, 2, 27.16445),
    Sketcher.Constraint("DistanceY", -1, 1, 3, 2, 11.050009),
    Sketcher.Constraint("DistanceX", -1, 1, 5, 2, 11.790579),
    Sketcher.Constraint("DistanceY", -1, 1, 7, 2, 17.418518),
    Sketcher.Constraint("DistanceX", -1, 1, 9, 2, 3.802269),
    Sketcher.Constraint("DistanceY", -1, 1, 9, 2, 18.849688),
    Sketcher.Constraint("DistanceX", 11, 2, -1, 1, 1.255179),
    Sketcher.Constraint("DistanceX", 14, 2, -1, 1, 12.522449),
    Sketcher.Constraint("DistanceX", 16, 2, -1, 1, 19.420682),
    Sketcher.Constraint("DistanceX", 19, 2, -1, 1, 17.574348),
    Sketcher.Constraint("DistanceX", 20, 2, -1, 1, 26.236791),
    Sketcher.Constraint("DistanceX", 22, 2, -1, 1, 26.154671),
    Sketcher.Constraint("DistanceY", 23, 2, -1, 1, 4.170939),
    Sketcher.Constraint("DistanceX", 24, 2, -1, 1, 25.74756),
    Sketcher.Constraint("DistanceY", 24, 2, -1, 1, 9.705318),
    Sketcher.Constraint("DistanceY", 27, 2, -1, 1, 14.593022),
    Sketcher.Constraint("DistanceY", 32, 2, -1, 1, 26.61106),
    Sketcher.Constraint("DistanceX", -1, 1, 34, 2, 7.07673),
    Sketcher.Constraint("DistanceX", -1, 1, 35, 2, 8.159451),
    Sketcher.Constraint("DistanceY", 35, 2, -1, 1, 17.412391),
    Sketcher.Constraint("DistanceX", -1, 1, 38, 2, 21.637879),
    Sketcher.Constraint("DistanceY", 41, 2, -1, 1, 4.003281),
    Sketcher.Constraint("DistanceX", -1, 1, 44, 2, 19.177989),
    Sketcher.Constraint("DistanceY", -1, 1, 44, 2, 1.404541),
    Sketcher.Constraint("DistanceY", 1, 2, 5, 2, 8.282071),
    Sketcher.Constraint("DistanceY", 4, 2, 6, 2, 6.24229),
    Sketcher.Constraint("DistanceX", 1, 2, 6, 2, 1.496112),
    Sketcher.Constraint("DistanceX", 7, 2, 6, 2, 11.29528),
    Sketcher.Constraint("DistanceX", 10, 2, 9, 2, 1.307112),
    Sketcher.Constraint("DistanceY", 13, 2, 16, 2, 1.418709),
    Sketcher.Constraint("DistanceX", 17, 2, 13, 2, 9.649709),
    Sketcher.Constraint("DistanceX", 18, 2, 17, 2, 10.01794),
    Sketcher.Constraint("DistanceY", 17, 2, 18, 2, 1.19252),
    Sketcher.Constraint("DistanceY", 21, 2, 19, 2, 6.229011),
    Sketcher.Constraint("DistanceX", 20, 2, 21, 2, 7.072089),
    Sketcher.Constraint("DistanceY", 26, 2, 27, 2, 2.269471),
    Sketcher.Constraint("DistanceY", 28, 2, 25, 2, 12.216559),
    Sketcher.Constraint("DistanceY", 29, 2, 26, 2, 0.863212),
    Sketcher.Constraint("DistanceY", 37, 2, 39, 2, 3.937248),
    Sketcher.Constraint("DistanceX", 39, 2, 40, 2, 8.566989),
    Sketcher.Constraint("DistanceX", 40, 2, 42, 2, 2.838191),
])
pad2 = body.newObject("PartDesign::Pad", "Pad001")
pad2.Profile = sketch2
pad2.Length = Q("1 in")

doc.recompute()
